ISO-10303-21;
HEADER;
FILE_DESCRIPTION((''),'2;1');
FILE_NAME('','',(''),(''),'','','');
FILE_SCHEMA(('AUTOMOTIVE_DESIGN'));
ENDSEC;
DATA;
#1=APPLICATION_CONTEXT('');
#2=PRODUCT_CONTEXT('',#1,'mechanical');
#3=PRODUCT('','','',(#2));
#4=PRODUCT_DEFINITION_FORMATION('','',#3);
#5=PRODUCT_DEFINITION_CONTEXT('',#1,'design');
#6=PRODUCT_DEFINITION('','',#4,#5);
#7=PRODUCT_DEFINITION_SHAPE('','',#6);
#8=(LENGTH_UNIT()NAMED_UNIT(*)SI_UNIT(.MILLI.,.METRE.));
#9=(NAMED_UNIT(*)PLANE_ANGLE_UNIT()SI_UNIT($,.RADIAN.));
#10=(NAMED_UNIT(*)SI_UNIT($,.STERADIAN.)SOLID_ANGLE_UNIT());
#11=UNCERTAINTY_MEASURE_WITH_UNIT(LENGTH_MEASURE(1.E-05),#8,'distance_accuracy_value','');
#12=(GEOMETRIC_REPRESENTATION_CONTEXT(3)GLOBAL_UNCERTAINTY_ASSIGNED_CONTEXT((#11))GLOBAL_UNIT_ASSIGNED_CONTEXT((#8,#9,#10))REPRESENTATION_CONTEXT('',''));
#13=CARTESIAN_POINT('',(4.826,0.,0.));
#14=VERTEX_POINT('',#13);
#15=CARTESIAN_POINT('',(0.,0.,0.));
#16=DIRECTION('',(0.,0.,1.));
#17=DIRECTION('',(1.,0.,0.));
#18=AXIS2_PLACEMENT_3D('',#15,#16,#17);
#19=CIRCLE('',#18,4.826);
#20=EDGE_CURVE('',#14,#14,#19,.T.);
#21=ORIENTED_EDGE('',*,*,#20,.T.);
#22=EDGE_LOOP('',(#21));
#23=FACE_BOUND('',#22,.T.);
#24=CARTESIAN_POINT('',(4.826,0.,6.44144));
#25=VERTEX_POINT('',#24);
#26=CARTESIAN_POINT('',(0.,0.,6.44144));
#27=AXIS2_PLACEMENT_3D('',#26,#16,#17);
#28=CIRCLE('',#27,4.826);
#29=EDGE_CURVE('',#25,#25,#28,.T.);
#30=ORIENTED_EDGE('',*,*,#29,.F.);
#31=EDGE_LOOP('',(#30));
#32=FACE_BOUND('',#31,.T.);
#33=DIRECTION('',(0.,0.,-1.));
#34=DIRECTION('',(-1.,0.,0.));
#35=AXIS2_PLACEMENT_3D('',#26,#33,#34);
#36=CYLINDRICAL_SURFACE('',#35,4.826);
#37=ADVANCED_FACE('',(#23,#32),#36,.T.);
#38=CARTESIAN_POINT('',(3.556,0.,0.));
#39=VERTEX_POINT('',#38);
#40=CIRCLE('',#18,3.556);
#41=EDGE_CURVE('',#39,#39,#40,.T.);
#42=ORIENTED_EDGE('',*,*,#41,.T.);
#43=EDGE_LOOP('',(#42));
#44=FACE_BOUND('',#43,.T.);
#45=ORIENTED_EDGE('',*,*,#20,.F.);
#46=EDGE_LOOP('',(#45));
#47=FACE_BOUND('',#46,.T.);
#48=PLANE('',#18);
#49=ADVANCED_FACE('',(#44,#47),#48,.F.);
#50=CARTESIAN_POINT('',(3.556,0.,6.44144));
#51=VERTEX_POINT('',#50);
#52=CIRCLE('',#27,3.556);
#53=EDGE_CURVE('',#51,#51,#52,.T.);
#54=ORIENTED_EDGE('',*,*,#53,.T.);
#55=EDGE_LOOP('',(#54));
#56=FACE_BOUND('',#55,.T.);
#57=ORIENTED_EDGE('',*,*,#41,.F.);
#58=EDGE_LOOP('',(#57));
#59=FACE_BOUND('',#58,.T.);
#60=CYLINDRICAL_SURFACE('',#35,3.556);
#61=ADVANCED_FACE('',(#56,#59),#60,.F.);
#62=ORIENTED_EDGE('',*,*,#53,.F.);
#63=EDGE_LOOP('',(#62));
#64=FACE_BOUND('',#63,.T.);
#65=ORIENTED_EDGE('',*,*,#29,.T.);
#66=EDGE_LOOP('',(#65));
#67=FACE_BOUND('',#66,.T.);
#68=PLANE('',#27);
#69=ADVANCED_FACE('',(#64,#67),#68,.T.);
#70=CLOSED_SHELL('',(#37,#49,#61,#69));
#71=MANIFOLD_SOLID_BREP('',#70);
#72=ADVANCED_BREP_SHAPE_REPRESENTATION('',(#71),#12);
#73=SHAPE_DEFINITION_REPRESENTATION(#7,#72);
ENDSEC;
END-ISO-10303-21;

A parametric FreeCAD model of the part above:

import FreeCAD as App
import Part
import Sketcher
from FreeCAD import Vector
Q = App.Units.Quantity

doc = App.newDocument("Part")
params = doc.addObject("Spreadsheet::Sheet", "Params")
for row, (alias, value) in enumerate([
    ("sketch1_diameter", "0.38 in"),
    ("sketch1_diameter2", "0.28 in"),
    ("pad1_length", "0.2536 in"),
], start=1):
    params.set(f"A{row}", alias)
    params.set(f"B{row}", "=" + value)
    params.setAlias(f"B{row}", alias)

body = doc.addObject("PartDesign::Body", "Body")

# Sketch on XY plane
sketch1 = body.newObject("Sketcher::SketchObject", "Sketch")
sketch1.AttachmentSupport = (doc.getObject("XY_Plane"), [""])
sketch1.MapMode = "FlatFace"
sketch1.addGeometry(Part.Circle(Vector(0, 0, 0), Vector(0, 0, 1), 4.8), False)
sketch1.addGeometry(Part.Circle(Vector(0, 0, 0), Vector(0, 0, 1), 3.6), False)
sketch1.addConstraint(Sketcher.Constraint("Coincident", 0, 3, -1, 1))
sketch1.addConstraint(Sketcher.Constraint("Coincident", 1, 3, -1, 1))
sketch1.addConstraint(Sketcher.Constraint("Diameter", 0, Q("0.38 in")))
sketch1.addConstraint(Sketcher.Constraint("Diameter", 1, Q("0.28 in")))
sketch1.setExpression("Constraints[2]", "Params.sketch1_diameter")
sketch1.setExpression("Constraints[3]", "Params.sketch1_diameter2")
pad1 = body.newObject("PartDesign::Pad", "Pad")
pad1.Profile = sketch1
pad1.setExpression("Length", "Params.pad1_length")

doc.recompute()
